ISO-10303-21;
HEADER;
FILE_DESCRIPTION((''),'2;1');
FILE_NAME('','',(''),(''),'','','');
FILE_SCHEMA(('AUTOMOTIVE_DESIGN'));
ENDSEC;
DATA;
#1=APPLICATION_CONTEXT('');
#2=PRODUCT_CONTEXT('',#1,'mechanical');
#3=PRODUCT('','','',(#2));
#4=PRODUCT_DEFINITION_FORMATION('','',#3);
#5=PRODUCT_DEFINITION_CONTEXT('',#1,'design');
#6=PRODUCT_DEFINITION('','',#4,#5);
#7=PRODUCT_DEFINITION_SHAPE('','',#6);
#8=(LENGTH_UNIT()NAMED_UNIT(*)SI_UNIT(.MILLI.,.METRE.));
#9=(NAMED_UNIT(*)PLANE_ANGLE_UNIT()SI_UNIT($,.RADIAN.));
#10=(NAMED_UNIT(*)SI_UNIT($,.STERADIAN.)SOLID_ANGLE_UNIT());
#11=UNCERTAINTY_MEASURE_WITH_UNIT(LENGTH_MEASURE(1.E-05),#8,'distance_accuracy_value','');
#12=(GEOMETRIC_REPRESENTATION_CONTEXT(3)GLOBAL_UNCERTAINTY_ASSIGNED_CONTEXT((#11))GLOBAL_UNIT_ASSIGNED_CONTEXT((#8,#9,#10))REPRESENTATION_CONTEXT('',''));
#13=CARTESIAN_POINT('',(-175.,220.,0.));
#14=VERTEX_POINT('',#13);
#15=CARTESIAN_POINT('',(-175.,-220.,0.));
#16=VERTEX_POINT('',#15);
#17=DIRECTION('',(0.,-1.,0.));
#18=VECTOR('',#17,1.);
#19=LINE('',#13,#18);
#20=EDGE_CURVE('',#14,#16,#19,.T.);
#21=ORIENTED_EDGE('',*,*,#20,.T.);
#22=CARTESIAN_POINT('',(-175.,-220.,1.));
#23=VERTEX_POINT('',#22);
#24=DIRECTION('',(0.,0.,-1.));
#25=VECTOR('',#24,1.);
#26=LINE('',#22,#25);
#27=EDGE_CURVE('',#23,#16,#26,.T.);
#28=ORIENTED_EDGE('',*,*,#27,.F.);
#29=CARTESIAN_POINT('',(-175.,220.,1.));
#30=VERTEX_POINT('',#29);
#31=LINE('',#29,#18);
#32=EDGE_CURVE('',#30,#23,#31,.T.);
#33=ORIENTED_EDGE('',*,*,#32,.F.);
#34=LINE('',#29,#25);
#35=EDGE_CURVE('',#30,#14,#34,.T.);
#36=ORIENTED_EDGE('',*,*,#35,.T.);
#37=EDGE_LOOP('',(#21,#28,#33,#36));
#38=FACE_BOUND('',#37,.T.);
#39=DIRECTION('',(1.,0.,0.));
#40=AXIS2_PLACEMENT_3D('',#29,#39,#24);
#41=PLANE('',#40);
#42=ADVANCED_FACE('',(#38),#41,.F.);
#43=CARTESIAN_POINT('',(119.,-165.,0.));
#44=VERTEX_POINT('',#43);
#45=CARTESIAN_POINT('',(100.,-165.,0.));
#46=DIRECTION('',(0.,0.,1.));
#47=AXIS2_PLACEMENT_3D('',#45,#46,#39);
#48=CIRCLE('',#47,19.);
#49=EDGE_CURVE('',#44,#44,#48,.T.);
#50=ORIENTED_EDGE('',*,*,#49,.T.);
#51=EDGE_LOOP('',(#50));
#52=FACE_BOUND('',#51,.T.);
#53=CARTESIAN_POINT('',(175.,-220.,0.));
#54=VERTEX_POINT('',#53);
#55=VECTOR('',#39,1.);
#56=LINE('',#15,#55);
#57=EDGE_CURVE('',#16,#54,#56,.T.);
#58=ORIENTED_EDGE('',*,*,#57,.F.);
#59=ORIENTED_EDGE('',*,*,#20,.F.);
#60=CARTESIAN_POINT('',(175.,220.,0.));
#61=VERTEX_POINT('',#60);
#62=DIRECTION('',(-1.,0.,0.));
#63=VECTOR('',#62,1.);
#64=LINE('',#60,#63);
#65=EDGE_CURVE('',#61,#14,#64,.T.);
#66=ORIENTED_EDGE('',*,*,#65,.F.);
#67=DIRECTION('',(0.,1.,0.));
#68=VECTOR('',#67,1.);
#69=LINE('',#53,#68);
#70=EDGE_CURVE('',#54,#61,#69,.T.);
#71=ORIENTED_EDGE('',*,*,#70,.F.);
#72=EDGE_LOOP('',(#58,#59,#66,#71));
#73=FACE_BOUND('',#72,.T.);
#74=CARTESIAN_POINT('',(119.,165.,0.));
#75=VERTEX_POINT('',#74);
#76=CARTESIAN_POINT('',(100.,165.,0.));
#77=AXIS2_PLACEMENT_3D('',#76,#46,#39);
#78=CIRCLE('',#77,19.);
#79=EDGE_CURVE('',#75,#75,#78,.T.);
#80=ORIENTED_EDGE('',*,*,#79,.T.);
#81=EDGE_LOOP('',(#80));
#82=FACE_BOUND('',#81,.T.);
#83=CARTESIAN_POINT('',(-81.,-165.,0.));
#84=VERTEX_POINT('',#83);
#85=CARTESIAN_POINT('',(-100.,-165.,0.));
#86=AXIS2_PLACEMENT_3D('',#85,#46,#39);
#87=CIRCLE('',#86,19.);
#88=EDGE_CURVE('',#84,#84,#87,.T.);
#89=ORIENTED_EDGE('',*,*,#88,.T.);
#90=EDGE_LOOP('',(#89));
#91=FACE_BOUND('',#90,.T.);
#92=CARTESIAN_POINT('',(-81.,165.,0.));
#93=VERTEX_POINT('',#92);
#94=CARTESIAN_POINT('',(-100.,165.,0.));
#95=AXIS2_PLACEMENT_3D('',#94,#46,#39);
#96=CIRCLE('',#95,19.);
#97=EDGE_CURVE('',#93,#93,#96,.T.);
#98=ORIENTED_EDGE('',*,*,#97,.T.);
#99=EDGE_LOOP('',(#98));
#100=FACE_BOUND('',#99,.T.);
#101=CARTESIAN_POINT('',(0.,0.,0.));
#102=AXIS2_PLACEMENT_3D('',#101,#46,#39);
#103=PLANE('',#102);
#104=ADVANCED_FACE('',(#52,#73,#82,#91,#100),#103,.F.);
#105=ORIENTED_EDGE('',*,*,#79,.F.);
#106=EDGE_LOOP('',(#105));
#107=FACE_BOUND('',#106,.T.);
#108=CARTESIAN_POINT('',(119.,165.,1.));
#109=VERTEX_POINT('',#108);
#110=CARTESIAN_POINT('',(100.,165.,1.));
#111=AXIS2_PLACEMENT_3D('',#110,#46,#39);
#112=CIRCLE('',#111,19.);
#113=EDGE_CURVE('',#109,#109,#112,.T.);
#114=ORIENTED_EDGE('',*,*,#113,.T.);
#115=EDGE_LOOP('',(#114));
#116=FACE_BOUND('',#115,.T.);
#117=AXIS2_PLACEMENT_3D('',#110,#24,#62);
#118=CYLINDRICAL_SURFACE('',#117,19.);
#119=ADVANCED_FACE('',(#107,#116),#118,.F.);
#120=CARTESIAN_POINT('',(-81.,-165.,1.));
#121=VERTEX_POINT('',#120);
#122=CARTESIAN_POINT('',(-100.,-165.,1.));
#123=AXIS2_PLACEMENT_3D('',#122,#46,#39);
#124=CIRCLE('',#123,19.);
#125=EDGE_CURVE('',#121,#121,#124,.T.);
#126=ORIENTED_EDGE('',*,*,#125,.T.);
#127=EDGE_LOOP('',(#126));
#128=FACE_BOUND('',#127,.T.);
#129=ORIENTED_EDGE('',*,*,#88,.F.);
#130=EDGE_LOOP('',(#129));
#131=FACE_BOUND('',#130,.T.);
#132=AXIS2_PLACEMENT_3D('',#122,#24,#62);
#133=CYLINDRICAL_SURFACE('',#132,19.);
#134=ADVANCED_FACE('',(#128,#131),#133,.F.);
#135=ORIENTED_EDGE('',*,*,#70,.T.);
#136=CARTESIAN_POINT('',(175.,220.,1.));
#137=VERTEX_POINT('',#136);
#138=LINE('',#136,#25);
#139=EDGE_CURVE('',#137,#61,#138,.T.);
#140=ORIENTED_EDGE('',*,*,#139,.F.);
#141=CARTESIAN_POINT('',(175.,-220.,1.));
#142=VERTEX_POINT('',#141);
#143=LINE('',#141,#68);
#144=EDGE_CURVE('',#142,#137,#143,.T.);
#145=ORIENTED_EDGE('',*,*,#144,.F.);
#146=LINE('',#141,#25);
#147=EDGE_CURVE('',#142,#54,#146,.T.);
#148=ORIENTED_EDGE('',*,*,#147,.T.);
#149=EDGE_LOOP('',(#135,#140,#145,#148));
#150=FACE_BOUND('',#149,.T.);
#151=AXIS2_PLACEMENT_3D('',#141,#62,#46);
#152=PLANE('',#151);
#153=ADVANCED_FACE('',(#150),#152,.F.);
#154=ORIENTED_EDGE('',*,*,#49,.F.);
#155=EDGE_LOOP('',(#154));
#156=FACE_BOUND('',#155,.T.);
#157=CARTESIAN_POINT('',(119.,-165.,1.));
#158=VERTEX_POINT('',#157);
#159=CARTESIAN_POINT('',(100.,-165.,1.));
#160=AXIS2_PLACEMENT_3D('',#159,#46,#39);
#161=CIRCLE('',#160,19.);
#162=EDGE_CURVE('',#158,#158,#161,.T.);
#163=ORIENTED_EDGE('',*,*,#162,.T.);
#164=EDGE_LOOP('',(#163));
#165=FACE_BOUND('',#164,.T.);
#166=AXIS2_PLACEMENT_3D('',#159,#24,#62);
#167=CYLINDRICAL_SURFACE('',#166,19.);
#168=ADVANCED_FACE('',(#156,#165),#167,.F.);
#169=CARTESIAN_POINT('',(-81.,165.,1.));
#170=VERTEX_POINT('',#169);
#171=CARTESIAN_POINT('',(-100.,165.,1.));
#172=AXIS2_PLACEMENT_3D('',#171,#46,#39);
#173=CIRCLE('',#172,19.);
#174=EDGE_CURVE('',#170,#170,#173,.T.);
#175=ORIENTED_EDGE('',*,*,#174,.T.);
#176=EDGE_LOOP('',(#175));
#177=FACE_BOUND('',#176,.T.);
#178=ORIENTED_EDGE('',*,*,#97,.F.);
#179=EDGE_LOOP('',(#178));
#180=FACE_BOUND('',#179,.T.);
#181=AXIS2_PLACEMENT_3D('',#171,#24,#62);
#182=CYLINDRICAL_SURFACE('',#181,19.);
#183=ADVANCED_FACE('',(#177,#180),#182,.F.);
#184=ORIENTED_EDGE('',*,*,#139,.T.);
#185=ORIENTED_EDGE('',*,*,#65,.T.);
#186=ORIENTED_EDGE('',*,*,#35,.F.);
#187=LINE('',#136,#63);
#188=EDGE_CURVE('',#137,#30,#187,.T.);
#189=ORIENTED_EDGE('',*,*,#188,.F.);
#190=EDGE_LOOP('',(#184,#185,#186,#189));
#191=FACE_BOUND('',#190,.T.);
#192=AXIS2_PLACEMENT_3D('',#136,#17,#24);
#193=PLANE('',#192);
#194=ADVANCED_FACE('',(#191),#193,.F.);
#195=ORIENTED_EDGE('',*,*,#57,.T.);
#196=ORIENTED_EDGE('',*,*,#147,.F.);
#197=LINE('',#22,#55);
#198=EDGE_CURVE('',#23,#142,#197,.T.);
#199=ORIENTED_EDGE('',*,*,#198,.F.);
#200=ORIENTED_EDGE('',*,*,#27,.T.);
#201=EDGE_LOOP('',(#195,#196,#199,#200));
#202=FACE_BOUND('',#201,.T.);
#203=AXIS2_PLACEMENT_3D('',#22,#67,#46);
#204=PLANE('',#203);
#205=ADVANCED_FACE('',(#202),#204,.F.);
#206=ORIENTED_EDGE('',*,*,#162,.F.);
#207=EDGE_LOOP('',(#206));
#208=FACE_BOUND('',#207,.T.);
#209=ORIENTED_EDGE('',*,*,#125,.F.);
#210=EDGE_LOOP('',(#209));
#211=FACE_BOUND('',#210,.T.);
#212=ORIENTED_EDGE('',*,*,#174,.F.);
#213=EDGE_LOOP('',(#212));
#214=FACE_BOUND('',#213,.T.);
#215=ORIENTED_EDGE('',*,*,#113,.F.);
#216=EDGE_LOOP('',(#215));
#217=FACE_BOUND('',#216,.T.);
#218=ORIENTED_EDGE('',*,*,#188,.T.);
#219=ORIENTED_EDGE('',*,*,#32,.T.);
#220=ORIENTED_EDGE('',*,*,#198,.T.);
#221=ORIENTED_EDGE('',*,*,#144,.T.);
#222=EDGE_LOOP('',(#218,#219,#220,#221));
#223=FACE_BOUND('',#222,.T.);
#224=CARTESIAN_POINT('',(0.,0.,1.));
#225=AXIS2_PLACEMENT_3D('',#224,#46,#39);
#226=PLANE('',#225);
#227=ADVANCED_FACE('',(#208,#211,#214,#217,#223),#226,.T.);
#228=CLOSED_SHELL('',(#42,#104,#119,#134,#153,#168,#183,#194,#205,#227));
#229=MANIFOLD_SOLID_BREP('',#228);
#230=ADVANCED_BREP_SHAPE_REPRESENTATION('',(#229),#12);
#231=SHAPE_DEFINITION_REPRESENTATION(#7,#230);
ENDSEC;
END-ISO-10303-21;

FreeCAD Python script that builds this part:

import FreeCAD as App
import Part
import Sketcher
Q = App.Units.Quantity


def add_polygon(sketch, points):
    """Adds a closed chain of lines whose ends are joined by coincident constraints."""
    first, n = sketch.GeometryCount, len(points)
    for a, b in zip(points, points[1:] + points[:1]):
        sketch.addGeometry(Part.LineSegment(App.Vector(*a, 0), App.Vector(*b, 0)), False)
    for i in range(n):
        sketch.addConstraint(Sketcher.Constraint("Coincident", first + i, 2, first + (i + 1) % n, 1))

doc = App.newDocument("Part")
body = doc.addObject("PartDesign::Body", "Body")

sketch1 = body.newObject("Sketcher::SketchObject", "Sketch")
sketch1.AttachmentSupport = (doc.getObject("XY_Plane"), [""])
sketch1.MapMode = "FlatFace"
add_polygon(sketch1, [(-175, 220), (-175, -220), (175, -220), (175, 220)])
sketch1.addGeometry(Part.Circle(App.Vector(-100, -165, 0), App.Vector(0, 0, 1), 19), False)
sketch1.addGeometry(Part.Circle(App.Vector(100, -165, 0), App.Vector(0, 0, 1), 19), False)
sketch1.addGeometry(Part.Circle(App.Vector(-100, 165, 0), App.Vector(0, 0, 1), 19), False)
sketch1.addGeometry(Part.Circle(App.Vector(100, 165, 0), App.Vector(0, 0, 1), 19), False)
sketch1.addConstraint([
    Sketcher.Constraint("Vertical", 0),
    Sketcher.Constraint("Horizontal", 1),
    Sketcher.Constraint("Vertical", 2),
    Sketcher.Constraint("Horizontal", 3),
    Sketcher.Constraint("Equal", 4, 5),
    Sketcher.Constraint("Equal", 5, 6),
    Sketcher.Constraint("Equal", 6, 7),
    Sketcher.Constraint("Symmetric", 5, 3, 6, 3, -1, 1),
    Sketcher.Constraint("Symmetric", 4, 3, 7, 3, -1, 1),
    Sketcher.Constraint("Symmetric", 0, 2, 2, 2, -1, 1),
    Sketcher.Constraint("Symmetric", 4, 3, 5, 3, -2),
    Sketcher.Constraint("Diameter", 4, Q("38 mm")),
    Sketcher.Constraint("DistanceX", 1, 1, 1, 2, Q("350 mm")),
    Sketcher.Constraint("DistanceY", 0, 2, 0, 1, Q("440 mm")),
    Sketcher.Constraint("DistanceX", 4, 3, -1, 1, Q("100 mm")),
    Sketcher.Constraint("DistanceY", 4, 3, -1, 1, Q("165 mm")),
])
pad1 = body.newObject("PartDesign::Pad", "Pad")
pad1.Profile = sketch1
pad1.Length = 1

doc.recompute()
